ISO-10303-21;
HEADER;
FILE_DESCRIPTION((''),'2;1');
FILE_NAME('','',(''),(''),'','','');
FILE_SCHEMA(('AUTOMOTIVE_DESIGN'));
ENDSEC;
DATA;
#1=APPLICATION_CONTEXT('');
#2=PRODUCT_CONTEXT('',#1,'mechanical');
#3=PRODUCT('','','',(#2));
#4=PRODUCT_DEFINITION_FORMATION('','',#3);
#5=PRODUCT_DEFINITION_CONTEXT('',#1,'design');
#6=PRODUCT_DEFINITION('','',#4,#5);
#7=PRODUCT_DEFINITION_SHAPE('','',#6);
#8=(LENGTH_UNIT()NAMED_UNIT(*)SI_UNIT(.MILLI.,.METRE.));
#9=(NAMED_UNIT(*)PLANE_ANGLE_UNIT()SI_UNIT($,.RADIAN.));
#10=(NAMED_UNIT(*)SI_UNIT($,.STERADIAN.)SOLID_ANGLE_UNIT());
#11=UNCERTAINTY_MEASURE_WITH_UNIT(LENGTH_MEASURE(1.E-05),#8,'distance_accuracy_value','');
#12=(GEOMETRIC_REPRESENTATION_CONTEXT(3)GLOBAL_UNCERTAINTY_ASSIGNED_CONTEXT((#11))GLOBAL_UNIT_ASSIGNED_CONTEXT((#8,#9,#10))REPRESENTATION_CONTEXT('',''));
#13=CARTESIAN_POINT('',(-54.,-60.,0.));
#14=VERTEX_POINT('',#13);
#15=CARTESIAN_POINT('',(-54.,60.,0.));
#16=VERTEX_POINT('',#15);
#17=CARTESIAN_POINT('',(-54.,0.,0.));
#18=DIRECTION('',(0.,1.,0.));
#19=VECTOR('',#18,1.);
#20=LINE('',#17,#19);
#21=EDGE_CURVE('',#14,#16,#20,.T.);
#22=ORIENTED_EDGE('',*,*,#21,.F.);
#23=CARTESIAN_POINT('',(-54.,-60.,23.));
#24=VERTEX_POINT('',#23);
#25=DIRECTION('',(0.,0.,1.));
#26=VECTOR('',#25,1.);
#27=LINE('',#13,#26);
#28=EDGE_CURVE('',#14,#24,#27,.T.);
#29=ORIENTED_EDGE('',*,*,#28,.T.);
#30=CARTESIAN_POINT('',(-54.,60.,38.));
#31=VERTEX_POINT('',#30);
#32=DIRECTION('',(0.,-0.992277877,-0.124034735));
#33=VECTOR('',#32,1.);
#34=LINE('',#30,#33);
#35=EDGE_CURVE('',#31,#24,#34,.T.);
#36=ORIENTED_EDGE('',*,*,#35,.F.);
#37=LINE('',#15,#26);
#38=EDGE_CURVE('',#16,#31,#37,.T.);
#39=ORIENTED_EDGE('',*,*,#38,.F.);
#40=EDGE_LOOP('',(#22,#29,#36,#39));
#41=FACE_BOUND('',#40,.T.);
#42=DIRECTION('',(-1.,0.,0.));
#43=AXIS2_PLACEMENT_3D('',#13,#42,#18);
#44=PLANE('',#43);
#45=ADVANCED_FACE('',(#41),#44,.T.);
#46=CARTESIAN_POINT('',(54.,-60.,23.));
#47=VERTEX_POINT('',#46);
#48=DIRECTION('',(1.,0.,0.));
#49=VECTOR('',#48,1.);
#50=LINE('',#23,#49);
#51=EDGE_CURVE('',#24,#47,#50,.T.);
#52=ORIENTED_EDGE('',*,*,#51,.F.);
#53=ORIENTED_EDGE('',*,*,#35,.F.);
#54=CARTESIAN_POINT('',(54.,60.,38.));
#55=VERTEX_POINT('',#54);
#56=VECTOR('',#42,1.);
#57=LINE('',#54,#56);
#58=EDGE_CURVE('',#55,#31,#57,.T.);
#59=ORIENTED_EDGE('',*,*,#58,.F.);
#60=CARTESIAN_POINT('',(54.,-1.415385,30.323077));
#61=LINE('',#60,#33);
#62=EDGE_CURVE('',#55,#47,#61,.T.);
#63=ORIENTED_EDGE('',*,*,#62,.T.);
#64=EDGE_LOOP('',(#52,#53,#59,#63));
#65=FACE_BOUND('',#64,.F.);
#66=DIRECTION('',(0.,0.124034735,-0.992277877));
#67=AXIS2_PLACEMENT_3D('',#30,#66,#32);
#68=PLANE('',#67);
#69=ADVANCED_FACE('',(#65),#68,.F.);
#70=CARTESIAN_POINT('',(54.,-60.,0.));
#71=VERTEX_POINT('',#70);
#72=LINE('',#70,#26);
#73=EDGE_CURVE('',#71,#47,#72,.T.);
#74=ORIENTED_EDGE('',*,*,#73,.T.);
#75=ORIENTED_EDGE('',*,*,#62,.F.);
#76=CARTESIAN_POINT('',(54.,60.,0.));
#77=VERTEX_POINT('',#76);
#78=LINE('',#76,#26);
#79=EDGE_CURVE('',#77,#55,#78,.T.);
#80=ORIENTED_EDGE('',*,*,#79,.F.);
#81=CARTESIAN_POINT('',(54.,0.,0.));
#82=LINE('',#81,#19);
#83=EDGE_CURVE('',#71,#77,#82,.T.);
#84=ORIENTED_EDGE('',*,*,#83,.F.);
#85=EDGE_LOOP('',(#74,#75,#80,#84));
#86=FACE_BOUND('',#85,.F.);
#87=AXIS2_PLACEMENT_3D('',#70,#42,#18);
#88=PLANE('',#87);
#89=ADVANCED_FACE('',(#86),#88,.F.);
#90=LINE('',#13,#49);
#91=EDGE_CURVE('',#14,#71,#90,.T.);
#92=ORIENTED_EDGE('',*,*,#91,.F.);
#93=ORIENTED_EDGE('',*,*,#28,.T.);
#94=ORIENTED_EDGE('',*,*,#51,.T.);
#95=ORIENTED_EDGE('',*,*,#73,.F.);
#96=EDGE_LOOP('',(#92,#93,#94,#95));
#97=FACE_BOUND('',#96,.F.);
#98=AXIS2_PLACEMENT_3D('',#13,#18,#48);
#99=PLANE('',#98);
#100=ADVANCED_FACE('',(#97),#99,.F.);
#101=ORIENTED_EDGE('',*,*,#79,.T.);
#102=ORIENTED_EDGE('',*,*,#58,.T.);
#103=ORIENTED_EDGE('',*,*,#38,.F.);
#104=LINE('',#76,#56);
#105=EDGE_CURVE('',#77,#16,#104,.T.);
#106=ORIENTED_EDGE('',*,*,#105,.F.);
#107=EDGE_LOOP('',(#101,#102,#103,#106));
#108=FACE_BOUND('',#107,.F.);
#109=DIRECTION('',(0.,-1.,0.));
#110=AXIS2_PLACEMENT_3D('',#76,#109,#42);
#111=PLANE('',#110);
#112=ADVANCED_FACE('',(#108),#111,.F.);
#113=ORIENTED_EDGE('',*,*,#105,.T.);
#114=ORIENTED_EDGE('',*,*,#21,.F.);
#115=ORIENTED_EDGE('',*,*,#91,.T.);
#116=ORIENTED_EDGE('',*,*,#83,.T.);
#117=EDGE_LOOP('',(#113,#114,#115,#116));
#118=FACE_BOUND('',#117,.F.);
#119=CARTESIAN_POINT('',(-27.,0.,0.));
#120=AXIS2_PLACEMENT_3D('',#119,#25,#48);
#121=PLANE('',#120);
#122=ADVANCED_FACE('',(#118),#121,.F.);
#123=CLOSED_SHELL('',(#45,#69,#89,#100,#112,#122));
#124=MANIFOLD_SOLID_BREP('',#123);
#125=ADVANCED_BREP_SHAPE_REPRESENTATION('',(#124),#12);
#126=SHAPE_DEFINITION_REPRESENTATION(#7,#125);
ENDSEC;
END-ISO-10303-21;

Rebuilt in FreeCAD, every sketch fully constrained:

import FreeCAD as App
import Part
import Sketcher

V = App.Vector
Q = App.Units.Quantity


def add_polygon(sketch, points):
    """Adds a closed chain of lines whose ends are joined by coincident constraints."""
    first, n = sketch.GeometryCount, len(points)
    for a, b in zip(points, points[1:] + points[:1]):
        sketch.addGeometry(Part.LineSegment(App.Vector(*a, 0), App.Vector(*b, 0)), False)
    for i in range(n):
        sketch.addConstraint(Sketcher.Constraint("Coincident", first + i, 2, first + (i + 1) % n, 1))

doc = App.newDocument("Part")
body = doc.addObject("PartDesign::Body", "Body")

# Sketch on XY plane
sketch1 = doc.addObject("Sketcher::SketchObject", "Sketch")
body.addObject(sketch1)
sketch1.AttachmentSupport = (doc.XY_Plane, [""])
sketch1.MapMode = "FlatFace"
add_polygon(sketch1, [(-54, 60), (-54, -60), (54, -60), (54, 60)])  # lines 0-3
sketch1.addConstraint([
    Sketcher.Constraint("Vertical", 0),
    Sketcher.Constraint("Horizontal", 1),
    Sketcher.Constraint("Vertical", 2),
    Sketcher.Constraint("Horizontal", 3),
    Sketcher.Constraint("Symmetric", 0, 2, 2, 2, -1, 1),
    Sketcher.Constraint("DistanceX", 1, 1, 1, 2, Q("108 mm")),
    Sketcher.Constraint("DistanceY", 0, 2, 0, 1, Q("120 mm")),
])
pad1 = doc.addObject("PartDesign::Pad", "Pad")
body.addObject(pad1)
pad1.Profile = sketch1
pad1.Length = 38

# Sketch on YZ plane
sketch2 = doc.addObject("Sketcher::SketchObject", "Sketch001")
body.addObject(sketch2)
sketch2.AttachmentSupport = (doc.YZ_Plane, [""])
sketch2.MapMode = "FlatFace"
sketch2.AttachmentOffset = App.Placement(V(0, 0, -54), App.Rotation())
add_polygon(sketch2, [(60, 38), (-60, 23), (-60, 38)])  # lines 0-2
sketch2.addConstraint([
    Sketcher.Constraint("Vertical", 1),
    Sketcher.Constraint("Horizontal", 2),
    Sketcher.Constraint("DistanceX", 2, 1, 2, 2, Q("120 mm")),
    Sketcher.Constraint("DistanceY", 1, 1, 1, 2, Q("15 mm")),
    Sketcher.Constraint("DistanceX", 0, 2, -1, 1, Q("60 mm")),
    Sketcher.Constraint("DistanceY", -1, 1, 0, 2, Q("23 mm")),
])
pocket1 = doc.addObject("PartDesign::Pocket", "Pocket")
body.addObject(pocket1)
pocket1.Profile = sketch2
pocket1.Type = "ThroughAll"
pocket1.Reversed = True

doc.recompute()
